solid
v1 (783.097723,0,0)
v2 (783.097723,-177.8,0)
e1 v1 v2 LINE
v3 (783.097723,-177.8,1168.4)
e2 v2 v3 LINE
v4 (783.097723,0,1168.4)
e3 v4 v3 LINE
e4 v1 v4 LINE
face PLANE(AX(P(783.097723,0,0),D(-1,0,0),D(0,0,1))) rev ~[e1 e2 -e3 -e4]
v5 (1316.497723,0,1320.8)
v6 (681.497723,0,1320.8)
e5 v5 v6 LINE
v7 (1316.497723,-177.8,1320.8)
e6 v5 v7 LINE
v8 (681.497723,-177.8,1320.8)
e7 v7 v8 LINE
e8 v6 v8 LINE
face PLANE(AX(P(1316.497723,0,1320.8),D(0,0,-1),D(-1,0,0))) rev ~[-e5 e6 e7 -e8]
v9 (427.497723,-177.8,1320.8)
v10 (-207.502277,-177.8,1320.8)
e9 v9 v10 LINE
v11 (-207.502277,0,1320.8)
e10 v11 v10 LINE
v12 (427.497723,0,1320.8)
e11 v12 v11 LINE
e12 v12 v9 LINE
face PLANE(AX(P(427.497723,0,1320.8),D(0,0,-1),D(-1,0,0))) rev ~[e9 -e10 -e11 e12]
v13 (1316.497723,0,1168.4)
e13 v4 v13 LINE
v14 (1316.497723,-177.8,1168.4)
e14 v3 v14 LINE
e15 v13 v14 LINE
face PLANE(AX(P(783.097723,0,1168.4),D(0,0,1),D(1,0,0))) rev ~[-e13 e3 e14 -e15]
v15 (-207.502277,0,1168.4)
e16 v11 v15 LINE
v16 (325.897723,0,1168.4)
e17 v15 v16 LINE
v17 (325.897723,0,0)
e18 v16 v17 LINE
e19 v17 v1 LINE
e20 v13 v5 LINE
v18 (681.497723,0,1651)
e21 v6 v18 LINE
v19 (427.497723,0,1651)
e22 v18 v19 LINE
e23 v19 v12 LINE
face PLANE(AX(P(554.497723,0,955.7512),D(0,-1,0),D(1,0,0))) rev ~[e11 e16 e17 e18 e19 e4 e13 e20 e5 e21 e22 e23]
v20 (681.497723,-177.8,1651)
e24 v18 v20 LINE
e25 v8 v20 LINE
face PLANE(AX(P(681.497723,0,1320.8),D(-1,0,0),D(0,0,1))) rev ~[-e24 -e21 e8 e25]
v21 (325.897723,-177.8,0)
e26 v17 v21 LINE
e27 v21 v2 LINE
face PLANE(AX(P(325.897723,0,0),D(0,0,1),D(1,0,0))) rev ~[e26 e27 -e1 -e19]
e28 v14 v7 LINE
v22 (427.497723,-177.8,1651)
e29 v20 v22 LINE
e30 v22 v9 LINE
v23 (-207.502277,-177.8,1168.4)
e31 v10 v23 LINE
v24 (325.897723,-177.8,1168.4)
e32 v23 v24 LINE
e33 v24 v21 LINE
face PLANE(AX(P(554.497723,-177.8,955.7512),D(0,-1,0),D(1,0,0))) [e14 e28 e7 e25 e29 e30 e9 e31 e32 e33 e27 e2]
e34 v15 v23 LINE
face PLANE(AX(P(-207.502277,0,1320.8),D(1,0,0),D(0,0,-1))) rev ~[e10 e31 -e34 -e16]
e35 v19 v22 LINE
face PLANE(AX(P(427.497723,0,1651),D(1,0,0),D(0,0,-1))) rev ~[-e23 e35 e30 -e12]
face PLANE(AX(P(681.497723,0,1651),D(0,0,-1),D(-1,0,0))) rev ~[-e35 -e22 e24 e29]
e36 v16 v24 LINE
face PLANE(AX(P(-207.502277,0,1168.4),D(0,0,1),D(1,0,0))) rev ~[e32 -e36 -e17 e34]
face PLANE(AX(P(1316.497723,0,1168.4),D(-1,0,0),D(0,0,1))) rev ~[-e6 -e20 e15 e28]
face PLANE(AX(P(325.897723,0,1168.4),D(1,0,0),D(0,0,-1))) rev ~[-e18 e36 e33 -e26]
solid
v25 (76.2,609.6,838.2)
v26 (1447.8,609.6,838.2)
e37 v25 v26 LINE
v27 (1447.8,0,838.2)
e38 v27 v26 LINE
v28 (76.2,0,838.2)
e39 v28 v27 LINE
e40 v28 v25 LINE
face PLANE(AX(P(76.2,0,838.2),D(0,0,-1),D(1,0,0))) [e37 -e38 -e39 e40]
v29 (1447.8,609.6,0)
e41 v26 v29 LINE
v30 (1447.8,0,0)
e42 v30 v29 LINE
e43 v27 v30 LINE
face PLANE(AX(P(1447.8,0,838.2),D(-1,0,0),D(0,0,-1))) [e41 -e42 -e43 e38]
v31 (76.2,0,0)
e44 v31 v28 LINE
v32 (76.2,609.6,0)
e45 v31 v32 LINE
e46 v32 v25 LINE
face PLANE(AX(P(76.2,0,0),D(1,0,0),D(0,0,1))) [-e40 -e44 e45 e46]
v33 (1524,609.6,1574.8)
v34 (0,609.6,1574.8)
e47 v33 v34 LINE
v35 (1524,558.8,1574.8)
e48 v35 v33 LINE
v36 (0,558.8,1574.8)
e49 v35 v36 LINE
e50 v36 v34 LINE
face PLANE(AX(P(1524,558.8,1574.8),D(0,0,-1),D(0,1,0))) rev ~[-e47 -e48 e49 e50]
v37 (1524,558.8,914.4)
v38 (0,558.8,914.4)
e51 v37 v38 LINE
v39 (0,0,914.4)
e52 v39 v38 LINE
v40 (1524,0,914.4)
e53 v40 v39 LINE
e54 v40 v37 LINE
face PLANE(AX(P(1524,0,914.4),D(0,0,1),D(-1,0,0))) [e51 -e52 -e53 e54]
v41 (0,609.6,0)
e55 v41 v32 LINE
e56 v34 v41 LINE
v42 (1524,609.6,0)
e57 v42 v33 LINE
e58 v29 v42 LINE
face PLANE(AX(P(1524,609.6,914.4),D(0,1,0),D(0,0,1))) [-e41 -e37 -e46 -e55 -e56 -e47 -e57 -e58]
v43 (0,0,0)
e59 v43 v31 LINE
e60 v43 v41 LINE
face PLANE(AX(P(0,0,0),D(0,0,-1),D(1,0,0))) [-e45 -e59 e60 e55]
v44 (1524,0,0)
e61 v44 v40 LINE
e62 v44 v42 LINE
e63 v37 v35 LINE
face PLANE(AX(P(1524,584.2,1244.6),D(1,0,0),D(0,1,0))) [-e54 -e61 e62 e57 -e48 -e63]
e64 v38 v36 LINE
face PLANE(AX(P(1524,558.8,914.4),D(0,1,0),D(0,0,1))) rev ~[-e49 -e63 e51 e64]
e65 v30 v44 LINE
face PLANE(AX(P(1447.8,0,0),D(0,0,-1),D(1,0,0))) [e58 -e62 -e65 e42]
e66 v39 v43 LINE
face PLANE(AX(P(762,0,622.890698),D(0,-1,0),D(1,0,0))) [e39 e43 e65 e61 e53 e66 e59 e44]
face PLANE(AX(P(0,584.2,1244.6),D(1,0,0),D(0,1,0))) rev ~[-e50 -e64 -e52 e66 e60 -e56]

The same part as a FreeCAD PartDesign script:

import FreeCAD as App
import Part
import Sketcher
from FreeCAD import Vector
Q = App.Units.Quantity

doc = App.newDocument("Part")
params = doc.addObject("Spreadsheet::Sheet", "Params")
for row, (alias, value) in enumerate([
    ("sketch1_width", "3 in"),
    ("sketch1_width2", "54 in"),
    ("sketch1_height", "36 in"),
    ("sketch1_height2", "33 in"),
    ("pad1_length", "24 in"),
    ("sketch2_width", "2 in"),
    ("sketch2_height", "26 in"),
    ("pad2_length", "60 in"),
    ("sketch3_width", "18 in"),
    ("sketch3_width2", "21 in"),
    ("sketch3_width3", "25 in"),
    ("sketch3_height", "46 in"),
    ("sketch3_height2", "6 in"),
    ("pad3_length", "7 in"),
], start=1):
    params.set(f"A{row}", alias)
    params.set(f"B{row}", "=" + value)
    params.setAlias(f"B{row}", alias)

body = doc.addObject("PartDesign::Body", "Body")

# Sketch on XZ plane
sketch1 = body.newObject("Sketcher::SketchObject", "Sketch")
sketch1.AttachmentSupport = (doc.getObject("XZ_Plane"), [""])
sketch1.MapMode = "FlatFace"
sketch1.addGeometry([
    Part.LineSegment(Vector(0, 914, 0), Vector(0, 0, 0)),  # 0
    Part.LineSegment(Vector(0, 0, 0), Vector(76, 0, 0)),  # 1
    Part.LineSegment(Vector(76, 0, 0), Vector(76, 838, 0)),  # 2
    Part.LineSegment(Vector(76, 838, 0), Vector(1448, 838, 0)),  # 3
    Part.LineSegment(Vector(1448, 838, 0), Vector(1448, 0, 0)),  # 4
    Part.LineSegment(Vector(1448, 0, 0), Vector(1524, 0, 0)),  # 5
    Part.LineSegment(Vector(1524, 0, 0), Vector(1524, 914, 0)),  # 6
    Part.LineSegment(Vector(1524, 914, 0), Vector(0, 914, 0)),  # 7
], False)
sketch1.addConstraint([
    Sketcher.Constraint("Coincident", 0, 2, 1, 1),
    Sketcher.Constraint("Coincident", 1, 2, 2, 1),
    Sketcher.Constraint("Coincident", 2, 2, 3, 1),
    Sketcher.Constraint("Coincident", 3, 2, 4, 1),
    Sketcher.Constraint("Coincident", 4, 2, 5, 1),
    Sketcher.Constraint("Coincident", 5, 2, 6, 1),
    Sketcher.Constraint("Coincident", 6, 2, 7, 1),
    Sketcher.Constraint("Coincident", 7, 2, 0, 1),
    Sketcher.Constraint("Vertical", 0),
    Sketcher.Constraint("Horizontal", 1),
    Sketcher.Constraint("Vertical", 2),
    Sketcher.Constraint("Horizontal", 3),
    Sketcher.Constraint("Vertical", 4),
    Sketcher.Constraint("Horizontal", 5),
    Sketcher.Constraint("Vertical", 6),
    Sketcher.Constraint("Horizontal", 7),
    Sketcher.Constraint("Coincident", 0, 2, -1, 1),
    Sketcher.Constraint("PointOnObject", 4, 2, -1),
    Sketcher.Constraint("Equal", 1, 5),
    Sketcher.Constraint("DistanceX", 1, 1, 1, 2, Q("3 in")),
    Sketcher.Constraint("DistanceX", 3, 1, 3, 2, Q("54 in")),
    Sketcher.Constraint("DistanceY", 0, 2, 0, 1, Q("36 in")),
    Sketcher.Constraint("DistanceY", 2, 1, 2, 2, Q("33 in")),
])
sketch1.setExpression("Constraints[19]", "Params.sketch1_width")
sketch1.setExpression("Constraints[20]", "Params.sketch1_width2")
sketch1.setExpression("Constraints[21]", "Params.sketch1_height")
sketch1.setExpression("Constraints[22]", "Params.sketch1_height2")
pad1 = body.newObject("PartDesign::Pad", "Pad")
pad1.Profile = sketch1
pad1.setExpression("Length", "Params.pad1_length")
pad1.Reversed = True

# Sketch on YZ plane
sketch2 = body.newObject("Sketcher::SketchObject", "Sketch001")
sketch2.AttachmentSupport = (doc.getObject("YZ_Plane"), [""])
sketch2.MapMode = "FlatFace"
sketch2.AttachmentOffset = App.Placement(Vector(0, 0, 60 * 25.4), App.Rotation())
sketch2.addGeometry([
    Part.LineSegment(Vector(559, 1575, 0), Vector(559, 914, 0)),
    Part.LineSegment(Vector(559, 914, 0), Vector(610, 914, 0)),
    Part.LineSegment(Vector(610, 914, 0), Vector(610, 1575, 0)),
    Part.LineSegment(Vector(610, 1575, 0), Vector(559, 1575, 0)),
], False)
sketch2.addConstraint([
    Sketcher.Constraint("Coincident", 0, 2, 1, 1),
    Sketcher.Constraint("Coincident", 1, 2, 2, 1),
    Sketcher.Constraint("Coincident", 2, 2, 3, 1),
    Sketcher.Constraint("Coincident", 3, 2, 0, 1),
    Sketcher.Constraint("Vertical", 0),
    Sketcher.Constraint("Horizontal", 1),
    Sketcher.Constraint("Vertical", 2),
    Sketcher.Constraint("Horizontal", 3),
    Sketcher.Constraint("DistanceX", 1, 1, 1, 2, Q("2 in")),
    Sketcher.Constraint("DistanceY", 0, 2, 0, 1, Q("26 in")),
    Sketcher.Constraint("DistanceX", -1, 1, 0, 2, Q("22 in")),
    Sketcher.Constraint("DistanceY", -1, 1, 0, 2, Q("36 in")),
])
sketch2.setExpression("Constraints[8]", "Params.sketch2_width")
sketch2.setExpression("Constraints[9]", "Params.sketch2_height")
pad2 = body.newObject("PartDesign::Pad", "Pad001")
pad2.Profile = sketch2
pad2.setExpression("Length", "Params.pad2_length")
pad2.Reversed = True
body2 = doc.addObject("PartDesign::Body", "Body001")

# Sketch on XZ plane
sketch3 = body2.newObject("Sketcher::SketchObject", "Sketch002")
sketch3.AttachmentSupport = (doc.getObject("XZ_Plane001"), [""])
sketch3.MapMode = "FlatFace"
sketch3.addGeometry([
    Part.LineSegment(Vector(326, 1168, 0), Vector(326, 0, 0)),  # 0
    Part.LineSegment(Vector(326, 0, 0), Vector(783, 0, 0)),  # 1
    Part.LineSegment(Vector(783, 0, 0), Vector(783, 1168, 0)),  # 2
    Part.LineSegment(Vector(783, 1168, 0), Vector(1316, 1168, 0)),  # 3
    Part.LineSegment(Vector(1316, 1168, 0), Vector(1316, 1321, 0)),  # 4
    Part.LineSegment(Vector(1316, 1321, 0), Vector(681, 1321, 0)),  # 5
    Part.LineSegment(Vector(681, 1321, 0), Vector(681, 1651, 0)),  # 6
    Part.LineSegment(Vector(681, 1651, 0), Vector(427, 1651, 0)),  # 7
    Part.LineSegment(Vector(427, 1651, 0), Vector(427, 1321, 0)),  # 8
    Part.LineSegment(Vector(427, 1321, 0), Vector(-208, 1321, 0)),  # 9
    Part.LineSegment(Vector(-208, 1321, 0), Vector(-208, 1168, 0)),  # 10
    Part.LineSegment(Vector(-208, 1168, 0), Vector(326, 1168, 0)),  # 11
], False)
sketch3.addConstraint([
    Sketcher.Constraint("Coincident", 0, 2, 1, 1),
    Sketcher.Constraint("Coincident", 1, 2, 2, 1),
    Sketcher.Constraint("Coincident", 2, 2, 3, 1),
    Sketcher.Constraint("Coincident", 3, 2, 4, 1),
    Sketcher.Constraint("Coincident", 4, 2, 5, 1),
    Sketcher.Constraint("Coincident", 5, 2, 6, 1),
    Sketcher.Constraint("Coincident", 6, 2, 7, 1),
    Sketcher.Constraint("Coincident", 7, 2, 8, 1),
    Sketcher.Constraint("Coincident", 8, 2, 9, 1),
    Sketcher.Constraint("Coincident", 9, 2, 10, 1),
    Sketcher.Constraint("Coincident", 10, 2, 11, 1),
    Sketcher.Constraint("Coincident", 11, 2, 0, 1),
    Sketcher.Constraint("Vertical", 0),
    Sketcher.Constraint("Horizontal", 1),
    Sketcher.Constraint("Vertical", 2),
    Sketcher.Constraint("Horizontal", 3),
    Sketcher.Constraint("Vertical", 4),
    Sketcher.Constraint("Horizontal", 5),
    Sketcher.Constraint("Vertical", 6),
    Sketcher.Constraint("Horizontal", 7),
    Sketcher.Constraint("Vertical", 8),
    Sketcher.Constraint("Horizontal", 9),
    Sketcher.Constraint("Vertical", 10),
    Sketcher.Constraint("Horizontal", 11),
    Sketcher.Constraint("PointOnObject", 0, 2, -1),
    Sketcher.Constraint("Horizontal", 5, 2, 8, 2),
    Sketcher.Constraint("Horizontal", 3, 2, 10, 2),
    Sketcher.Constraint("Equal", 5, 9),
    Sketcher.Constraint("Equal", 3, 11),
    Sketcher.Constraint("DistanceX", 1, 1, 1, 2, Q("18 in")),
    Sketcher.Constraint("DistanceX", 3, 1, 3, 2, Q("21 in")),
    Sketcher.Constraint("DistanceX", 5, 2, 5, 1, Q("25 in")),
    Sketcher.Constraint("DistanceY", 0, 2, 0, 1, Q("46 in")),
    Sketcher.Constraint("DistanceY", 4, 1, 4, 2, Q("6 in")),
    Sketcher.Constraint("DistanceY", 6, 1, 6, 2, Q("13 in")),
    Sketcher.Constraint("DistanceX", -1, 1, 0, 2, Q("325.897723 mm")),
])
sketch3.setExpression("Constraints[29]", "Params.sketch3_width")
sketch3.setExpression("Constraints[30]", "Params.sketch3_width2")
sketch3.setExpression("Constraints[31]", "Params.sketch3_width3")
sketch3.setExpression("Constraints[32]", "Params.sketch3_height")
sketch3.setExpression("Constraints[33]", "Params.sketch3_height2")
pad3 = body2.newObject("PartDesign::Pad", "Pad002")
pad3.Profile = sketch3
pad3.setExpression("Length", "Params.pad3_length")

doc.recompute()
